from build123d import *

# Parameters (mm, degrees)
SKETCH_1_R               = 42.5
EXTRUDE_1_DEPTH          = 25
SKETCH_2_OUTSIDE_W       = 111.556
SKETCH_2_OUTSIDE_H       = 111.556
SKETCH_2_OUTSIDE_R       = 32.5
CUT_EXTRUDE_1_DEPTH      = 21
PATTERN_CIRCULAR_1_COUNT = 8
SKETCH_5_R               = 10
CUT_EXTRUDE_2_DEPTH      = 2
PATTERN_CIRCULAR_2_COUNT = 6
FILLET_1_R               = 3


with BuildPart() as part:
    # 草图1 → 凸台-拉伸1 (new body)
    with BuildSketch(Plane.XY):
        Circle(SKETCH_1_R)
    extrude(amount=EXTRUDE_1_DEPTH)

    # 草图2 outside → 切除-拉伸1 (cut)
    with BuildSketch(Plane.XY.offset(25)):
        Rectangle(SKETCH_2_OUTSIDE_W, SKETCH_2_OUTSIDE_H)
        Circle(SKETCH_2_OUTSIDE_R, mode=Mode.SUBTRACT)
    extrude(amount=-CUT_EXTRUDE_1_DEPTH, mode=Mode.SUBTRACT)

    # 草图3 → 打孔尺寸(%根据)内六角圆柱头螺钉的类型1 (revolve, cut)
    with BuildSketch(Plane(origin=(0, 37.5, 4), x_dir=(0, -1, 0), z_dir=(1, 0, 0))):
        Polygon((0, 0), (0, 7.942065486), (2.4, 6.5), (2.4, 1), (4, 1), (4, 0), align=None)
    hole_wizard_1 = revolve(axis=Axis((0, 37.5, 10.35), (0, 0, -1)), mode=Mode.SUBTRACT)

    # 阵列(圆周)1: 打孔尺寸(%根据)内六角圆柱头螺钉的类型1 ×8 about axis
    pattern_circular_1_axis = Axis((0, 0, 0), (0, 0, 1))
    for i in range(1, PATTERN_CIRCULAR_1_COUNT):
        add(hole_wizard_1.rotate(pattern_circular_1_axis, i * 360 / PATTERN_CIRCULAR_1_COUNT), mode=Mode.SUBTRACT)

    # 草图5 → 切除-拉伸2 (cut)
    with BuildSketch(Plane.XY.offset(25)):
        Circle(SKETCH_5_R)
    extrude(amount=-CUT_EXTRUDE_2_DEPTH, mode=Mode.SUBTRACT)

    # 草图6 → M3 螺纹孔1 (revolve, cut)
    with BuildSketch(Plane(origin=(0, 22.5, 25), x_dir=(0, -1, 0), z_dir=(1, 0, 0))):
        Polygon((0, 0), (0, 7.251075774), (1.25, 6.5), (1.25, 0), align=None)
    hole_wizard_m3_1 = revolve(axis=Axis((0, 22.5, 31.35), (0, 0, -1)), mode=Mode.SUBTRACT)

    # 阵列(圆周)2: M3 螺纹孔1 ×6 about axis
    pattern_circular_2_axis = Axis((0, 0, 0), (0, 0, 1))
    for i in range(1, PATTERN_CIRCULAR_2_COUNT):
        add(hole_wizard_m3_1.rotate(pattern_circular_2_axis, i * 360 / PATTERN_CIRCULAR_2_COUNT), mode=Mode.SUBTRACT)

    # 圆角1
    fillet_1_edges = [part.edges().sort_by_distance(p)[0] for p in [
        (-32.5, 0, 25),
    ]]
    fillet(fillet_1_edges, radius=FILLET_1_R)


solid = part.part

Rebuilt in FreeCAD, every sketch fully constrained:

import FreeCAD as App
import Part
import Sketcher

V = App.Vector
Q = App.Units.Quantity


def edges_at(feature, points):
    """Names of the edges that pass closest to the given points."""
    edges = feature.Shape.Edges
    near = lambda p: min(range(len(edges)), key=lambda i: edges[i].distToShape(Part.Vertex(*p))[0])
    return sorted({f"Edge{near(p) + 1}" for p in points})


def add_polygon(sketch, points):
    """Adds a closed chain of lines whose ends are joined by coincident constraints."""
    first, n = sketch.GeometryCount, len(points)
    for a, b in zip(points, points[1:] + points[:1]):
        sketch.addGeometry(Part.LineSegment(App.Vector(*a, 0), App.Vector(*b, 0)), False)
    for i in range(n):
        sketch.addConstraint(Sketcher.Constraint("Coincident", first + i, 2, first + (i + 1) % n, 1))

doc = App.newDocument("Part")
body = doc.addObject("PartDesign::Body", "Body")

sketch1 = doc.addObject("Sketcher::SketchObject", "Sketch")
body.addObject(sketch1)
sketch1.AttachmentSupport = (doc.XY_Plane, [""])
sketch1.MapMode = "FlatFace"
sketch1.addGeometry(Part.Circle(V(0, 0, 0), V(0, 0, 1), 42), False)
sketch1.addConstraint(Sketcher.Constraint("Coincident", 0, 3, -1, 1))
sketch1.addConstraint(Sketcher.Constraint("Diameter", 0, Q("85 mm")))
pad1 = doc.addObject("PartDesign::Pad", "Pad")
body.addObject(pad1)
pad1.Profile = sketch1
pad1.Length = 25

sketch2 = doc.addObject("Sketcher::SketchObject", "Sketch001")
body.addObject(sketch2)
sketch2.AttachmentSupport = (doc.XY_Plane, [""])
sketch2.MapMode = "FlatFace"
sketch2.AttachmentOffset = App.Placement(V(0, 0, 25), App.Rotation())
add_polygon(sketch2, [(-56, 56), (-56, -56), (56, -56), (56, 56)])
sketch2.addGeometry(Part.Circle(V(0, 0, 0), V(0, 0, 1), 32), False)
sketch2.addConstraint(Sketcher.Constraint("Vertical", 0))
sketch2.addConstraint(Sketcher.Constraint("Horizontal", 1))
sketch2.addConstraint(Sketcher.Constraint("Vertical", 2))
sketch2.addConstraint(Sketcher.Constraint("Horizontal", 3))
sketch2.addConstraint(Sketcher.Constraint("Coincident", 4, 3, -1, 1))
sketch2.addConstraint(Sketcher.Constraint("Symmetric", 0, 2, 2, 2, -1, 1))
sketch2.addConstraint(Sketcher.Constraint("Equal", 3, 0))
sketch2.addConstraint(Sketcher.Constraint("Diameter", 4, Q("65 mm")))
sketch2.addConstraint(Sketcher.Constraint("DistanceX", 1, 1, 1, 2, Q("111.556 mm")))
pocket1 = doc.addObject("PartDesign::Pocket", "Pocket")
body.addObject(pocket1)
pocket1.Profile = sketch2
pocket1.Length = 21

sketch3 = doc.addObject("Sketcher::SketchObject", "Sketch002")
body.addObject(sketch3)
sketch3.AttachmentSupport = (doc.YZ_Plane, [""])
sketch3.MapMode = "FlatFace"
add_polygon(sketch3, [(37.5, -3.9), (37.5, 4), (33.5, 4), (33.5, 3), (35.1, 3), (35.1, -2.5)])
sketch3.addGeometry(Part.LineSegment(V(37.5, 4, 0), V(37.5, -3.9, 0)), True)
sketch3.addConstraint(Sketcher.Constraint("Vertical", 0))
sketch3.addConstraint(Sketcher.Constraint("Horizontal", 1))
sketch3.addConstraint(Sketcher.Constraint("Vertical", 2))
sketch3.addConstraint(Sketcher.Constraint("Horizontal", 3))
sketch3.addConstraint(Sketcher.Constraint("Vertical", 4))
sketch3.addConstraint(Sketcher.Constraint("Vertical", 6))
sketch3.addConstraint(Sketcher.Constraint("Coincident", 6, 1, 0, 2))
sketch3.addConstraint(Sketcher.Constraint("Equal", 0, 6))
sketch3.addConstraint(Sketcher.Constraint("DistanceX", 1, 2, 1, 1, Q("4 mm")))
sketch3.addConstraint(Sketcher.Constraint("DistanceY", 2, 2, 2, 1, Q("1 mm")))
sketch3.addConstraint(Sketcher.Constraint("Angle", 5, Q("-31 deg")))
sketch3.addConstraint(Sketcher.Constraint("DistanceX", 3, 1, 3, 2, Q("1.6 mm")))
sketch3.addConstraint(Sketcher.Constraint("DistanceY", 4, 2, 4, 1, Q("5.5 mm")))
sketch3.addConstraint(Sketcher.Constraint("DistanceY", -1, 1, 0, 2, Q("4 mm")))
sketch3.addConstraint(Sketcher.Constraint("DistanceX", -1, 1, 0, 2, Q("37.5 mm")))
groove = doc.addObject("PartDesign::Groove", "Groove")
body.addObject(groove)
groove.Profile = sketch3
groove.ReferenceAxis = (sketch3, ["Axis0"])
groove.Angle = 360
doc.recompute()

polarpattern = doc.addObject("PartDesign::PolarPattern", "PolarPattern")
body.addObject(polarpattern)
polarpattern.Originals = [groove]
polarpattern.Axis = (doc.Z_Axis, [""])
polarpattern.Angle = 360
polarpattern.Occurrences = 8
body.Tip = polarpattern

sketch4 = doc.addObject("Sketcher::SketchObject", "Sketch003")
body.addObject(sketch4)
sketch4.AttachmentSupport = (doc.XY_Plane, [""])
sketch4.MapMode = "FlatFace"
sketch4.AttachmentOffset = App.Placement(V(0, 0, 25), App.Rotation())
sketch4.addGeometry(Part.Circle(V(0, 0, 0), V(0, 0, 1), 10), False)
sketch4.addConstraint(Sketcher.Constraint("Coincident", 0, 3, -1, 1))
sketch4.addConstraint(Sketcher.Constraint("Diameter", 0, Q("20 mm")))
pocket2 = doc.addObject("PartDesign::Pocket", "Pocket001")
body.addObject(pocket2)
pocket2.Profile = sketch4
pocket2.Length = 2

sketch5 = doc.addObject("Sketcher::SketchObject", "Sketch004")
body.addObject(sketch5)
sketch5.AttachmentSupport = (doc.YZ_Plane, [""])
sketch5.MapMode = "FlatFace"
add_polygon(sketch5, [(22.5, 17.7), (22.5, 25), (21.2, 25), (21.2, 18.5)])
sketch5.addGeometry(Part.LineSegment(V(22.5, 25, 0), V(22.5, 17.7, 0)), True)
sketch5.addConstraint(Sketcher.Constraint("Vertical", 0))
sketch5.addConstraint(Sketcher.Constraint("Horizontal", 1))
sketch5.addConstraint(Sketcher.Constraint("Vertical", 2))
sketch5.addConstraint(Sketcher.Constraint("Vertical", 4))
sketch5.addConstraint(Sketcher.Constraint("Coincident", 4, 1, 0, 2))
sketch5.addConstraint(Sketcher.Constraint("Equal", 0, 4))
sketch5.addConstraint(Sketcher.Constraint("Angle", 3, Q("-31 deg")))
sketch5.addConstraint(Sketcher.Constraint("DistanceY", 2, 2, 2, 1, Q("6.5 mm")))
sketch5.addConstraint(Sketcher.Constraint("DistanceY", -1, 1, 0, 2, Q("25 mm")))
sketch5.addConstraint(Sketcher.Constraint("DistanceX", 1, 2, 1, 1, Q("1.25 mm")))
sketch5.addConstraint(Sketcher.Constraint("DistanceX", -1, 1, 0, 2, Q("22.5 mm")))
groove2 = doc.addObject("PartDesign::Groove", "Groove001")
body.addObject(groove2)
groove2.Profile = sketch5
groove2.ReferenceAxis = (sketch5, ["Axis0"])
groove2.Angle = 360
doc.recompute()

polarpattern2 = doc.addObject("PartDesign::PolarPattern", "PolarPattern001")
body.addObject(polarpattern2)
polarpattern2.Originals = [groove2]
polarpattern2.Axis = (doc.Z_Axis, [""])
polarpattern2.Angle = 360
polarpattern2.Occurrences = 6
body.Tip = polarpattern2
doc.recompute()

fillet = doc.addObject("PartDesign::Fillet", "Fillet")
body.addObject(fillet)
fillet.Base = (polarpattern2, edges_at(polarpattern2, [(-32.5, 0, 25)]))
fillet.Radius = 3

doc.recompute()
